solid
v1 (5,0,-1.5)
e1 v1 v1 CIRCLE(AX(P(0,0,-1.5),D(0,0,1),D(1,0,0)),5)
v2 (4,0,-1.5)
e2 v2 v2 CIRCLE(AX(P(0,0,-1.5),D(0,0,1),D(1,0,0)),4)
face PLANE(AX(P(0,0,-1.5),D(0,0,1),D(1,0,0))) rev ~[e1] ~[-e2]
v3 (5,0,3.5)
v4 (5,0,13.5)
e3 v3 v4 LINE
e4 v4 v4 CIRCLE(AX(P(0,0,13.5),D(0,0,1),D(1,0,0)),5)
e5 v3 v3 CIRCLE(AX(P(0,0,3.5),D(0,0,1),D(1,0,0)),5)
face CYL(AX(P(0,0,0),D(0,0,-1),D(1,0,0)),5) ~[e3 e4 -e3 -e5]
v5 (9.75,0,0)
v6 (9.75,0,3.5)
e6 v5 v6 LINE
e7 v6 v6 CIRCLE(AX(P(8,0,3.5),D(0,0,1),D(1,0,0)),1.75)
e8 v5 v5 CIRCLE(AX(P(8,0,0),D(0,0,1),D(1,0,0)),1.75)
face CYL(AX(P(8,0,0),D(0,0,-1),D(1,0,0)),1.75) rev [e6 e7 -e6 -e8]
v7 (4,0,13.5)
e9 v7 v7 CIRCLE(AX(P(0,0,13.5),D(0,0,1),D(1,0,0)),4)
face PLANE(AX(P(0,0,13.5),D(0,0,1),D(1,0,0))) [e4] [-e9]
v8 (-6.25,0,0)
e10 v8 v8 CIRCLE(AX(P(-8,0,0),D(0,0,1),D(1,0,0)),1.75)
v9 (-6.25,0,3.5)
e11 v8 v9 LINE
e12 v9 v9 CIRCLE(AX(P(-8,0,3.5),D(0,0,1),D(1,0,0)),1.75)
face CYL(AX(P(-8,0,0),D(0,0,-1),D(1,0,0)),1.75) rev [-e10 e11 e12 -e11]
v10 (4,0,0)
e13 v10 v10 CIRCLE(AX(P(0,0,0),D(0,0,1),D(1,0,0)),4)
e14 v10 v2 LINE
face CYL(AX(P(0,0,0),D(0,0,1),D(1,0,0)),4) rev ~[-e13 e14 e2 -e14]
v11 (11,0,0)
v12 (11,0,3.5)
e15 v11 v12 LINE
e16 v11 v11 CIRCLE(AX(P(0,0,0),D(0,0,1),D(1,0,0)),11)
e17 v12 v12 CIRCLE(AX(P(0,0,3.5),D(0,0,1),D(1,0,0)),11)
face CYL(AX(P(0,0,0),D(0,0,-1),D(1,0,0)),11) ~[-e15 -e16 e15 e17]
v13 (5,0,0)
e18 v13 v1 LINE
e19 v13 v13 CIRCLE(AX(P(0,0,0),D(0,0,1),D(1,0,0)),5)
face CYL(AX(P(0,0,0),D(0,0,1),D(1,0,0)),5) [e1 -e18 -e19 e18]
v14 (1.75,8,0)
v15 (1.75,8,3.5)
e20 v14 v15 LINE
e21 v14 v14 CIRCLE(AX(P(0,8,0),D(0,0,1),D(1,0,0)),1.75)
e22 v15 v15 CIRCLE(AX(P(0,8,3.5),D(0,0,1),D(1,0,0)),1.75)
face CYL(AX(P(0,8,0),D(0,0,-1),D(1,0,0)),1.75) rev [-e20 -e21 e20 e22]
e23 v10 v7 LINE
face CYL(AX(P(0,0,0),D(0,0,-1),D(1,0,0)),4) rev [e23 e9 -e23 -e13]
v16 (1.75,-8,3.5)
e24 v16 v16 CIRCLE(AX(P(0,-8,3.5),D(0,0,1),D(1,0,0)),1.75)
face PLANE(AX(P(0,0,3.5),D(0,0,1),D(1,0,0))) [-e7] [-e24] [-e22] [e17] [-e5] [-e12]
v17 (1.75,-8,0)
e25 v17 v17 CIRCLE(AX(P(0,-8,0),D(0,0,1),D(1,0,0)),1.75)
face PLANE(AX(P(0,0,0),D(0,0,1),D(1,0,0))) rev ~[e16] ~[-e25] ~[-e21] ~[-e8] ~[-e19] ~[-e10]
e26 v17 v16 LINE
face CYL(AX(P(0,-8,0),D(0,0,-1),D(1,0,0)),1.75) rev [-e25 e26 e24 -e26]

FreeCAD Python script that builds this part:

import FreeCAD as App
import Part
import Sketcher

doc = App.newDocument("Part")
body = doc.addObject("PartDesign::Body", "Body")

sketch1 = doc.addObject("Sketcher::SketchObject", "Sketch")
body.addObject(sketch1)
sketch1.AttachmentSupport = (doc.XY_Plane, [""])
sketch1.MapMode = "FlatFace"
sketch1.addGeometry([
    Part.Circle(App.Vector(0, 0, 0), App.Vector(0, 0, 1), 11),
    Part.Circle(App.Vector(0, -8, 0), App.Vector(0, 0, 1), 1.8),
    Part.Circle(App.Vector(-8, 0, 0), App.Vector(0, 0, 1), 1.8),
    Part.Circle(App.Vector(0, 0, 0), App.Vector(0, 0, 1), 5),
    Part.Circle(App.Vector(8, 0, 0), App.Vector(0, 0, 1), 1.8),
    Part.Circle(App.Vector(0, 8, 0), App.Vector(0, 0, 1), 1.8),
], False)
sketch1.addConstraint([
    Sketcher.Constraint("Coincident", 0, 3, -1, 1),
    Sketcher.Constraint("Coincident", 3, 3, -1, 1),
    Sketcher.Constraint("Equal", 1, 2),
    Sketcher.Constraint("Equal", 2, 4),
    Sketcher.Constraint("Equal", 4, 5),
    Sketcher.Constraint("Symmetric", 2, 3, 4, 3, -1, 1),
    Sketcher.Constraint("Symmetric", 1, 3, 5, 3, -1, 1),
    Sketcher.Constraint("PointOnObject", 1, 3, -2),
    Sketcher.Constraint("PointOnObject", 2, 3, -1),
    Sketcher.Constraint("Diameter", 0, 22.0),
    Sketcher.Constraint("Diameter", 3, 10.0),
    Sketcher.Constraint("Diameter", 1, 3.5),
    Sketcher.Constraint("DistanceY", 1, 3, -1, 1, 8.0),
    Sketcher.Constraint("DistanceX", 2, 3, -1, 1, 8.0),
])
pad1 = doc.addObject("PartDesign::Pad", "Pad")
body.addObject(pad1)
pad1.Profile = sketch1
pad1.Length = 3.5

sketch2 = doc.addObject("Sketcher::SketchObject", "Sketch001")
body.addObject(sketch2)
sketch2.AttachmentSupport = (doc.XY_Plane, [""])
sketch2.MapMode = "FlatFace"
sketch2.addGeometry([
    Part.Circle(App.Vector(0, 0, 0), App.Vector(0, 0, 1), 5),
    Part.Circle(App.Vector(0, 0, 0), App.Vector(0, 0, 1), 4),
], False)
sketch2.addConstraint([
    Sketcher.Constraint("Coincident", 0, 3, -1, 1),
    Sketcher.Constraint("Coincident", 1, 3, -1, 1),
    Sketcher.Constraint("Diameter", 0, 10.0),
    Sketcher.Constraint("Diameter", 1, 8.0),
])
pad2 = doc.addObject("PartDesign::Pad", "Pad001")
body.addObject(pad2)
pad2.Profile = sketch2
pad2.Type = "TwoLengths"
pad2.Length = 13.5
pad2.Length2 = 1.5

doc.recompute()
